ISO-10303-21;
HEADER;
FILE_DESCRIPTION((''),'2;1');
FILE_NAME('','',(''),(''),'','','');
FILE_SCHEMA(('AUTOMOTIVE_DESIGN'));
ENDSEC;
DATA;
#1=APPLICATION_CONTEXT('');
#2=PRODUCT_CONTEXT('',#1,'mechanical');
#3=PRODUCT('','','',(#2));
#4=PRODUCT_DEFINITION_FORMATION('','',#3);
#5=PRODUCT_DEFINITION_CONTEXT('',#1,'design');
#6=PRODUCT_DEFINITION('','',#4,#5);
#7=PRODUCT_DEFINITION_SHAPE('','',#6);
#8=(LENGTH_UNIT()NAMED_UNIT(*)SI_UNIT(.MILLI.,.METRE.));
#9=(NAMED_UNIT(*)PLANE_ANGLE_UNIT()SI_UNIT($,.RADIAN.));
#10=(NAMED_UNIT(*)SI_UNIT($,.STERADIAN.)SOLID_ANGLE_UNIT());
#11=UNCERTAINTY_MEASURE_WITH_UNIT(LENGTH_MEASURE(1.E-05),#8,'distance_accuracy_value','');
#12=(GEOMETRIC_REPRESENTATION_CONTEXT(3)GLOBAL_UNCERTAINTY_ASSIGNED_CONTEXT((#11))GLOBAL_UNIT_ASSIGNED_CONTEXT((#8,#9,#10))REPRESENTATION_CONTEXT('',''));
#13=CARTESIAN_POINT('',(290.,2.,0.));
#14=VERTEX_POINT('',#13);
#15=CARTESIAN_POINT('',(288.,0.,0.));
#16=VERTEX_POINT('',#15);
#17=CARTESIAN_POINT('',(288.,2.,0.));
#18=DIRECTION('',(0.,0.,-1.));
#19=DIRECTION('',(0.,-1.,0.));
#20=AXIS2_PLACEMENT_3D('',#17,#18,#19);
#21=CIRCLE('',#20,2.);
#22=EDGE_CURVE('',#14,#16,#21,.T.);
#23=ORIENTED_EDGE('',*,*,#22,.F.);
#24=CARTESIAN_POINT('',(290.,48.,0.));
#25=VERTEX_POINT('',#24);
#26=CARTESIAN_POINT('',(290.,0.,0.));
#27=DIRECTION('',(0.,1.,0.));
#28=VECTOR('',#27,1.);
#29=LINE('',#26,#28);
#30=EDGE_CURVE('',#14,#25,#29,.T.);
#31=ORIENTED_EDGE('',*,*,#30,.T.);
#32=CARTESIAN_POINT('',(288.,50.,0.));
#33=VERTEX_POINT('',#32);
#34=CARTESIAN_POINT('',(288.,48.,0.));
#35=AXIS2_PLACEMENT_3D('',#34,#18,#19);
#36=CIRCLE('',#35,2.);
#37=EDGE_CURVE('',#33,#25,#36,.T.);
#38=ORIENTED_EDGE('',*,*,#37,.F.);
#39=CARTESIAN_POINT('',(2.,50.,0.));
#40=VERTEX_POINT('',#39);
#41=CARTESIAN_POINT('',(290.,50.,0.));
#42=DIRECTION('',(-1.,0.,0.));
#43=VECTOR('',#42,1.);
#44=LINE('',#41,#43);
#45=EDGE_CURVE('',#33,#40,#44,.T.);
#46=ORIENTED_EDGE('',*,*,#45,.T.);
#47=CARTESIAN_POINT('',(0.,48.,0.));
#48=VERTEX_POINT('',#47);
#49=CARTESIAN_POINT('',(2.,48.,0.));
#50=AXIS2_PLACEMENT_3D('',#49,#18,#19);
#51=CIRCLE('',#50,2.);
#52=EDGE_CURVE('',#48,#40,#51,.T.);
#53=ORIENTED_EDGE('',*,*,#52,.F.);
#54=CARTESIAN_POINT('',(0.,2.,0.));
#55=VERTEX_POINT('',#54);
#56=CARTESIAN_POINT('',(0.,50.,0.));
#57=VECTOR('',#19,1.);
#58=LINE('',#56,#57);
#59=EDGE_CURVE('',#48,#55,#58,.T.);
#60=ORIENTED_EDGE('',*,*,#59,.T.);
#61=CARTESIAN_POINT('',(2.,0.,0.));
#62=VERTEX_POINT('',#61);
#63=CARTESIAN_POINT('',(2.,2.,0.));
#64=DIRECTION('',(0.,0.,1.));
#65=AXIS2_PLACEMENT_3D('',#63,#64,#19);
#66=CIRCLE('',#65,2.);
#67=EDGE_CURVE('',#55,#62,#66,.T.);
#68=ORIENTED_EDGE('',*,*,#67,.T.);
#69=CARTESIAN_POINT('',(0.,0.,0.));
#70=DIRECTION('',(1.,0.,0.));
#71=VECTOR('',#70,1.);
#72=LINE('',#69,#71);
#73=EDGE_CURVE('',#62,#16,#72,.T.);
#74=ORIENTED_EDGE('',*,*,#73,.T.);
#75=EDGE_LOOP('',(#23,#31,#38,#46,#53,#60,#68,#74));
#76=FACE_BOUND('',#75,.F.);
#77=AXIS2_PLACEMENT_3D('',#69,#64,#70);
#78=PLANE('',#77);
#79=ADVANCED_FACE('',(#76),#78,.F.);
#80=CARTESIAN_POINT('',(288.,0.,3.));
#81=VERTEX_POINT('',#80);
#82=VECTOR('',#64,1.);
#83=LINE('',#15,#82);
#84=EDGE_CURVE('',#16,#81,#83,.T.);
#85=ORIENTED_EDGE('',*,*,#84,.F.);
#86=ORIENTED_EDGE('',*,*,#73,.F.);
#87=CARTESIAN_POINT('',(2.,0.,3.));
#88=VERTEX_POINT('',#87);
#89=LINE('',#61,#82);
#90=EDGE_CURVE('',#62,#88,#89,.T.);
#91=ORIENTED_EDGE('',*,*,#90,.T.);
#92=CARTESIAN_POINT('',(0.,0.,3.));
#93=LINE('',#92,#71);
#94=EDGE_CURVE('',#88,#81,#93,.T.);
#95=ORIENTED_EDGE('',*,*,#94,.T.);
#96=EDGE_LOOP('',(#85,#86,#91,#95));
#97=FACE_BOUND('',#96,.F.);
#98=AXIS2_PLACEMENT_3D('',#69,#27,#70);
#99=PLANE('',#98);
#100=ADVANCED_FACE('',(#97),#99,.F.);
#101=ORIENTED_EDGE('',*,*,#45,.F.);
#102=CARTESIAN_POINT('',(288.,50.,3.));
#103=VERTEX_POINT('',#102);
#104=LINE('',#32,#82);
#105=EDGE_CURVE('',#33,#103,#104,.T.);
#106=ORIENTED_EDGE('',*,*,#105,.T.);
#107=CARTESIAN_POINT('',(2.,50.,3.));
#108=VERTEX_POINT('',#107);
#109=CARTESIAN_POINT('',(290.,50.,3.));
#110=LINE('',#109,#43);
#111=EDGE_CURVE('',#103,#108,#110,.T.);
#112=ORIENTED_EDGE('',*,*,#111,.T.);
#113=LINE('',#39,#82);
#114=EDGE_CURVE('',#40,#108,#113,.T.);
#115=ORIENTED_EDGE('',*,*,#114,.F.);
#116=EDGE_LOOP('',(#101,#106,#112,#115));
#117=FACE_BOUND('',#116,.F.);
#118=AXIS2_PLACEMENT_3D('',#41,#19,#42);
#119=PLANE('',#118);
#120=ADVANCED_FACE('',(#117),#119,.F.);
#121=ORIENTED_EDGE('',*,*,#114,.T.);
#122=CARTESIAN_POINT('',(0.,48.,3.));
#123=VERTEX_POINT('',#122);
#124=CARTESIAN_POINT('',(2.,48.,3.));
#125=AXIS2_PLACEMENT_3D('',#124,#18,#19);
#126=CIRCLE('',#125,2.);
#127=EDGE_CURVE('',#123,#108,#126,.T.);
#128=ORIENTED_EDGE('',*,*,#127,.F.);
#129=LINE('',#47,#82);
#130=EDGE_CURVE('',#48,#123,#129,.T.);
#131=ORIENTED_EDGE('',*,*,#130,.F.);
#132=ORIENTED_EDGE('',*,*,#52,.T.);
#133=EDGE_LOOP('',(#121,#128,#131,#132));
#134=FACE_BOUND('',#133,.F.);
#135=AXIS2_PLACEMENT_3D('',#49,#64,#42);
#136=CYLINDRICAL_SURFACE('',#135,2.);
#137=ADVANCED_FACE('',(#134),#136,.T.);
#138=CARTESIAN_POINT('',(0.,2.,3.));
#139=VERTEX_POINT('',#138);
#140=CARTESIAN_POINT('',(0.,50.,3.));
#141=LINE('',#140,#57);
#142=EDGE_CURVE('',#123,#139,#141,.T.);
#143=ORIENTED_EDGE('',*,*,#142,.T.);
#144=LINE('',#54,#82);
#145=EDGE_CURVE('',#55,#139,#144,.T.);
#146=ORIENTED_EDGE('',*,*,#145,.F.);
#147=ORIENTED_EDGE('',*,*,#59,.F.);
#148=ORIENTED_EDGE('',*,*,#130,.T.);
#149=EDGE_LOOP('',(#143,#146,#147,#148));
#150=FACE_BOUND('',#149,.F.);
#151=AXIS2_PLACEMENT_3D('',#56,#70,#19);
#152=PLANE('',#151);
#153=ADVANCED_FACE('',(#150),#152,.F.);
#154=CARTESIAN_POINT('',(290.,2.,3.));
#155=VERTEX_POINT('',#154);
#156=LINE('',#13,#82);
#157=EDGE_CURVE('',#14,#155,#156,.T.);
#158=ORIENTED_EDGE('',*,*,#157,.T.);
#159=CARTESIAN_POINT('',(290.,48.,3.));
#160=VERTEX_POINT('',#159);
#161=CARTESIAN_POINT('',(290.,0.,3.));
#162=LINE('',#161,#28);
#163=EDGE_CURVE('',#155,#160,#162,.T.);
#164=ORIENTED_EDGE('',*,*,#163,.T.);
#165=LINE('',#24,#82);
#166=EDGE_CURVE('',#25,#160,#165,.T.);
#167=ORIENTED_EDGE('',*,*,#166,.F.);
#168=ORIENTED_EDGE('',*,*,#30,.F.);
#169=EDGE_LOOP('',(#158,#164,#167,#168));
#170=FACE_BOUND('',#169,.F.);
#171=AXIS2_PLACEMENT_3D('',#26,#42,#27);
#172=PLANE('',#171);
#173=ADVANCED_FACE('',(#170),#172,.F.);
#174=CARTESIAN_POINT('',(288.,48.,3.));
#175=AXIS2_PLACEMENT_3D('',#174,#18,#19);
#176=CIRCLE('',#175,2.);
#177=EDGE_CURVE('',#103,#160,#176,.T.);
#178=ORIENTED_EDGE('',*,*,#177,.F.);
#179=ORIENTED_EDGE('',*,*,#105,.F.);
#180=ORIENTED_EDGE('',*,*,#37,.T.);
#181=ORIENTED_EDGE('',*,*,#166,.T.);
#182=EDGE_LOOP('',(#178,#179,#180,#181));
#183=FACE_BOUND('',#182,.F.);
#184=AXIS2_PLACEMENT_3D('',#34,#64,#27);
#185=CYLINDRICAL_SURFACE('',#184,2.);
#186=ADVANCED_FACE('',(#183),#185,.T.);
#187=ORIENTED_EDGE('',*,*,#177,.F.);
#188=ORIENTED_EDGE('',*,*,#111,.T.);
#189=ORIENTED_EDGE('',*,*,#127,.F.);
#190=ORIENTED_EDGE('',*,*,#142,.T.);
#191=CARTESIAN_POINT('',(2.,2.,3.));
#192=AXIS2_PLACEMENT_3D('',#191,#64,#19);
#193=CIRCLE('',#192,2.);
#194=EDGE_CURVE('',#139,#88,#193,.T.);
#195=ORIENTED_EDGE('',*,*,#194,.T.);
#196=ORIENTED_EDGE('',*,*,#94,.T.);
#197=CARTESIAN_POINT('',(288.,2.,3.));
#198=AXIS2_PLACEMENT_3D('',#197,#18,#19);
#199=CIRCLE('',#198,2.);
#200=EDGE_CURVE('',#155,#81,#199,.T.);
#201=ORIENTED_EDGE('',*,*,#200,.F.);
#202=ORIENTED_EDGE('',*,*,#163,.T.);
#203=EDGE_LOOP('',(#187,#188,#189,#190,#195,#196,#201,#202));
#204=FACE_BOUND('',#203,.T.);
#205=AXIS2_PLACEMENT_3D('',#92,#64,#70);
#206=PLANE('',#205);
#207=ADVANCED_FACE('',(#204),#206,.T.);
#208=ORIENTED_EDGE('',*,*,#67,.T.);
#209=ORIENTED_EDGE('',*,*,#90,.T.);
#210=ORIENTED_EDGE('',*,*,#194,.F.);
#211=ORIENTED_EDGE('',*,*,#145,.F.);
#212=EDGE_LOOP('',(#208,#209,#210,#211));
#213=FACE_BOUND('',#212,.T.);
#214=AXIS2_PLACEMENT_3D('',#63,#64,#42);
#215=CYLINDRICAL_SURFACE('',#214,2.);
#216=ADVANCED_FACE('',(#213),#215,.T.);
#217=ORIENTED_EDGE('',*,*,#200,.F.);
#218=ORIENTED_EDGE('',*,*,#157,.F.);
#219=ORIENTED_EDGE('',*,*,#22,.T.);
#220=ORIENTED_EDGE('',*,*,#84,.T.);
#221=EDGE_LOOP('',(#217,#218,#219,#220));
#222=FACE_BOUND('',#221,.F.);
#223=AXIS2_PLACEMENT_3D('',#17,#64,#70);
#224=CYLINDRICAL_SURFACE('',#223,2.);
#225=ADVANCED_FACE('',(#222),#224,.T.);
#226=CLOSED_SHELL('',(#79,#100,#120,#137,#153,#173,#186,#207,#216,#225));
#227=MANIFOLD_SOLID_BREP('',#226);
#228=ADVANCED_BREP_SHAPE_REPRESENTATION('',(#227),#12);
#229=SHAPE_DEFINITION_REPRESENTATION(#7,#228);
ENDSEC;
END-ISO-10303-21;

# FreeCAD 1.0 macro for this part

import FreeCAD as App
import Part
import Sketcher
from FreeCAD import Vector
Q = App.Units.Quantity


def edges_at(feature, points):
    """Names of the edges that pass closest to the given points."""
    edges = feature.Shape.Edges
    near = lambda p: min(range(len(edges)), key=lambda i: edges[i].distToShape(Part.Vertex(*p))[0])
    return sorted({f"Edge{near(p) + 1}" for p in points})


def add_polygon(sketch, points):
    """Adds a closed chain of lines whose ends are joined by coincident constraints."""
    first, n = sketch.GeometryCount, len(points)
    for a, b in zip(points, points[1:] + points[:1]):
        sketch.addGeometry(Part.LineSegment(App.Vector(*a, 0), App.Vector(*b, 0)), False)
    for i in range(n):
        sketch.addConstraint(Sketcher.Constraint("Coincident", first + i, 2, first + (i + 1) % n, 1))

doc = App.newDocument("Part")
body = doc.addObject("PartDesign::Body", "Body")

# Sketch on XY plane
sketch1 = doc.addObject("Sketcher::SketchObject", "Sketch")
body.addObject(sketch1)
sketch1.AttachmentSupport = (doc.XY_Plane, [""])
sketch1.MapMode = "FlatFace"
add_polygon(sketch1, [(0, 50), (0, 0), (290, 0), (290, 50)])  # lines 0-3
sketch1.addConstraint([
    Sketcher.Constraint("Vertical", 0),
    Sketcher.Constraint("Horizontal", 1),
    Sketcher.Constraint("Vertical", 2),
    Sketcher.Constraint("Horizontal", 3),
    Sketcher.Constraint("Coincident", 0, 2, -1, 1),
    Sketcher.Constraint("DistanceX", 1, 1, 1, 2, Q("290 mm")),
    Sketcher.Constraint("DistanceY", 0, 2, 0, 1, Q("50 mm")),
])
pad1 = doc.addObject("PartDesign::Pad", "Pad")
body.addObject(pad1)
pad1.Profile = sketch1
pad1.Length = 3
doc.recompute()

fillet = doc.addObject("PartDesign::Fillet", "Fillet")
body.addObject(fillet)
fillet.Base = (pad1, edges_at(pad1, [
    (290, 50, 1.5),
    (290, 0, 1.5),
    (0, 0, 1.5),
    (0, 50, 1.5),
]))
fillet.Radius = 2

doc.recompute()
